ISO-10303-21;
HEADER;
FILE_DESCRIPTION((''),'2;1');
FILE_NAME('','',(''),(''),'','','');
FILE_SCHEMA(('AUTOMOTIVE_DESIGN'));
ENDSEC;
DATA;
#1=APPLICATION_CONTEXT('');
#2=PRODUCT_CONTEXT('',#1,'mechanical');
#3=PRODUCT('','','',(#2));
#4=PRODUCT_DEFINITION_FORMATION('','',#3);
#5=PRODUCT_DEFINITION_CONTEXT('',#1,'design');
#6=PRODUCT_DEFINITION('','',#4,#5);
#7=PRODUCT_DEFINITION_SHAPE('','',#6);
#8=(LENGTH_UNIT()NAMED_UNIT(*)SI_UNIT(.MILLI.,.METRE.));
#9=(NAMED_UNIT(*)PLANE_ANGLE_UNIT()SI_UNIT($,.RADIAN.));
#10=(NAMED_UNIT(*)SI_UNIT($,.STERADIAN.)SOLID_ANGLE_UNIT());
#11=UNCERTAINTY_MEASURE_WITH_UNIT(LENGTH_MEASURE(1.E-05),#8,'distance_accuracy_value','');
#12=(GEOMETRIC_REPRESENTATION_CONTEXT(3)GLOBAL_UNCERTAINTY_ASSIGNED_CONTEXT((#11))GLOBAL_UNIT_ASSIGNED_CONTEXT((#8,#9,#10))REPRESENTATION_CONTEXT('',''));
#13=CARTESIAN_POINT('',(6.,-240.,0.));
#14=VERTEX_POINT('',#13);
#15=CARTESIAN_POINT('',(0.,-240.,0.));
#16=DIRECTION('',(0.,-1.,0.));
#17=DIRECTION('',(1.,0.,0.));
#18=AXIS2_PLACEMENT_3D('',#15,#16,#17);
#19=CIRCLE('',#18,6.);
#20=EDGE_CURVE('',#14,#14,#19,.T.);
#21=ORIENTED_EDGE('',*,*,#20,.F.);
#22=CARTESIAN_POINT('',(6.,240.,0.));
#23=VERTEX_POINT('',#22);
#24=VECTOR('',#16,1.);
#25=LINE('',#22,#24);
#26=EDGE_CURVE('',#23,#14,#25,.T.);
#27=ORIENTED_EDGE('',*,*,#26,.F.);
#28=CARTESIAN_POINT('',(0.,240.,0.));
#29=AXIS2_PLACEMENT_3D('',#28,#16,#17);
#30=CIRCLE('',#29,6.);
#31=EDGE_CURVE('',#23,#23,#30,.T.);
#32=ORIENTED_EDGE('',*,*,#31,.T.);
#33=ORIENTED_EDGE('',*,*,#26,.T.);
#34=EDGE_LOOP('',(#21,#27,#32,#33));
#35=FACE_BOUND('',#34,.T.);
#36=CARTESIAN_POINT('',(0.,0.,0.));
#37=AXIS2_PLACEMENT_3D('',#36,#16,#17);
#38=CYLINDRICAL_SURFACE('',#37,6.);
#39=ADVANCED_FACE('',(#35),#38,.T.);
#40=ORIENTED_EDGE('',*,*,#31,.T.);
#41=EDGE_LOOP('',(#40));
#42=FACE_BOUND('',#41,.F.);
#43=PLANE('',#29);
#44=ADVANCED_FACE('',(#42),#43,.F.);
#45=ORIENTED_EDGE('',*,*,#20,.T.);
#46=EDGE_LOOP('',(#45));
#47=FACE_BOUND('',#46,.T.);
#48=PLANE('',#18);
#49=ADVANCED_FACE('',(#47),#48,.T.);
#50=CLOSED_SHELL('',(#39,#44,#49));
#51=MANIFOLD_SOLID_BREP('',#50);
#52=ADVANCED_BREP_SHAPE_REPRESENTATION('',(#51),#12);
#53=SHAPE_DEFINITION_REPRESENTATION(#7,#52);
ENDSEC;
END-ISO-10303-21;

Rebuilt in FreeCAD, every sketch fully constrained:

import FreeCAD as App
import Part
import Sketcher
from FreeCAD import Vector

doc = App.newDocument("Part")
body = doc.addObject("PartDesign::Body", "Body")

sketch1 = body.newObject("Sketcher::SketchObject", "Sketch")
sketch1.AttachmentSupport = (doc.getObject("XZ_Plane"), [""])
sketch1.MapMode = "FlatFace"
sketch1.addGeometry(Part.Circle(Vector(0, 0, 0), Vector(0, 0, 1), 6), False)
sketch1.addConstraint([
    Sketcher.Constraint("Coincident", 0, 3, -1, 1),
    Sketcher.Constraint("Diameter", 0, 12.0),
])
pad1 = body.newObject("PartDesign::Pad", "Pad")
pad1.Profile = sketch1
pad1.Length = 480
pad1.Midplane = True
body2 = doc.addObject("PartDesign::Body", "Body001")
doc.recompute()

body2.BaseFeature = body
doc.recompute()
body.Visibility = False

doc.recompute()
